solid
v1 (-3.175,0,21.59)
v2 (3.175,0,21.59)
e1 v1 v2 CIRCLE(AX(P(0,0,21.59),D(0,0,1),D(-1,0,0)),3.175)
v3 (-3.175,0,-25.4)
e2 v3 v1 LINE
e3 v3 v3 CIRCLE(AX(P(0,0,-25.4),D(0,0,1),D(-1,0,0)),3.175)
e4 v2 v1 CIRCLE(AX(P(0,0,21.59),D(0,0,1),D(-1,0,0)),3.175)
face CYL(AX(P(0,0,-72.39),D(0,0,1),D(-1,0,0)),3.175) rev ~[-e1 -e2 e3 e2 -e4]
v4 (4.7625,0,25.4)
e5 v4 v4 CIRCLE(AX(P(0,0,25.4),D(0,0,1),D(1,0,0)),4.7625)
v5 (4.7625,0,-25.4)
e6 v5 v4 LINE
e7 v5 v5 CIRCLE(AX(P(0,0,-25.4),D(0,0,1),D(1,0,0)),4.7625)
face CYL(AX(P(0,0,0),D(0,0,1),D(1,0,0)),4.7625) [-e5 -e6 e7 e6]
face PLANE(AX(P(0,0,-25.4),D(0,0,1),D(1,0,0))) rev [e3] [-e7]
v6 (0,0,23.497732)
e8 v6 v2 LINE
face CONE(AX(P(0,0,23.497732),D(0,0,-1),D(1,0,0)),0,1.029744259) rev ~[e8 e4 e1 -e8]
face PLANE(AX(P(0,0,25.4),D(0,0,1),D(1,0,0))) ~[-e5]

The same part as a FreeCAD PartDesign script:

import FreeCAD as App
import Part
import Sketcher
Q = App.Units.Quantity


def add_polygon(sketch, points):
    """Adds a closed chain of lines whose ends are joined by coincident constraints."""
    first, n = sketch.GeometryCount, len(points)
    for a, b in zip(points, points[1:] + points[:1]):
        sketch.addGeometry(Part.LineSegment(App.Vector(*a, 0), App.Vector(*b, 0)), False)
    for i in range(n):
        sketch.addConstraint(Sketcher.Constraint("Coincident", first + i, 2, first + (i + 1) % n, 1))

doc = App.newDocument("Part")
body = doc.addObject("PartDesign::Body", "Body")

# Sketch on XZ plane
sketch1 = body.newObject("Sketcher::SketchObject", "Sketch")
sketch1.AttachmentSupport = (doc.getObject("XZ_Plane"), [""])
sketch1.MapMode = "FlatFace"
add_polygon(sketch1, [(0, 25.4), (0, -25.4), (4.8, -25.4), (4.8, 25.4)])  # lines 0-3
sketch1.addConstraint(Sketcher.Constraint("Vertical", 0))
sketch1.addConstraint(Sketcher.Constraint("Horizontal", 1))
sketch1.addConstraint(Sketcher.Constraint("Vertical", 2))
sketch1.addConstraint(Sketcher.Constraint("Horizontal", 3))
sketch1.addConstraint(Sketcher.Constraint("Symmetric", 0, 2, 3, 2, -1, 1))
sketch1.addConstraint(Sketcher.Constraint("DistanceY", 0, 2, 0, 1, Q("2 in")))
sketch1.addConstraint(Sketcher.Constraint("DistanceX", 1, 1, 1, 2, Q("0.1875 in")))
revolution = body.newObject("PartDesign::Revolution", "Revolution")
revolution.Profile = sketch1
revolution.ReferenceAxis = (sketch1, ["V_Axis"])
revolution.Angle = 360

# Sketch on XY plane
sketch2 = body.newObject("Sketcher::SketchObject", "Sketch001")
sketch2.AttachmentSupport = (doc.getObject("XY_Plane"), [""])
sketch2.MapMode = "FlatFace"
sketch2.AttachmentOffset = App.Placement(App.Vector(0, 0, -1 * 25.4), App.Rotation())
sketch2.addGeometry(Part.Circle(App.Vector(0, 0, 0), App.Vector(0, 0, 1), 3.2), False)
sketch2.addConstraint(Sketcher.Constraint("Coincident", 0, 3, -1, 1))
sketch2.addConstraint(Sketcher.Constraint("Diameter", 0, Q("0.25 in")))
doc.recompute()
hole = body.newObject("PartDesign::Hole", "Hole")
hole.Profile = sketch2
hole.ThreadType = "None"
hole.Diameter = Q("0.25 in")
hole.DepthType = "Dimension"
hole.Depth = Q("1.85 in")
hole.DrillPoint = "Angled"
hole.DrillPointAngle = 118
hole.Reversed = True

doc.recompute()
